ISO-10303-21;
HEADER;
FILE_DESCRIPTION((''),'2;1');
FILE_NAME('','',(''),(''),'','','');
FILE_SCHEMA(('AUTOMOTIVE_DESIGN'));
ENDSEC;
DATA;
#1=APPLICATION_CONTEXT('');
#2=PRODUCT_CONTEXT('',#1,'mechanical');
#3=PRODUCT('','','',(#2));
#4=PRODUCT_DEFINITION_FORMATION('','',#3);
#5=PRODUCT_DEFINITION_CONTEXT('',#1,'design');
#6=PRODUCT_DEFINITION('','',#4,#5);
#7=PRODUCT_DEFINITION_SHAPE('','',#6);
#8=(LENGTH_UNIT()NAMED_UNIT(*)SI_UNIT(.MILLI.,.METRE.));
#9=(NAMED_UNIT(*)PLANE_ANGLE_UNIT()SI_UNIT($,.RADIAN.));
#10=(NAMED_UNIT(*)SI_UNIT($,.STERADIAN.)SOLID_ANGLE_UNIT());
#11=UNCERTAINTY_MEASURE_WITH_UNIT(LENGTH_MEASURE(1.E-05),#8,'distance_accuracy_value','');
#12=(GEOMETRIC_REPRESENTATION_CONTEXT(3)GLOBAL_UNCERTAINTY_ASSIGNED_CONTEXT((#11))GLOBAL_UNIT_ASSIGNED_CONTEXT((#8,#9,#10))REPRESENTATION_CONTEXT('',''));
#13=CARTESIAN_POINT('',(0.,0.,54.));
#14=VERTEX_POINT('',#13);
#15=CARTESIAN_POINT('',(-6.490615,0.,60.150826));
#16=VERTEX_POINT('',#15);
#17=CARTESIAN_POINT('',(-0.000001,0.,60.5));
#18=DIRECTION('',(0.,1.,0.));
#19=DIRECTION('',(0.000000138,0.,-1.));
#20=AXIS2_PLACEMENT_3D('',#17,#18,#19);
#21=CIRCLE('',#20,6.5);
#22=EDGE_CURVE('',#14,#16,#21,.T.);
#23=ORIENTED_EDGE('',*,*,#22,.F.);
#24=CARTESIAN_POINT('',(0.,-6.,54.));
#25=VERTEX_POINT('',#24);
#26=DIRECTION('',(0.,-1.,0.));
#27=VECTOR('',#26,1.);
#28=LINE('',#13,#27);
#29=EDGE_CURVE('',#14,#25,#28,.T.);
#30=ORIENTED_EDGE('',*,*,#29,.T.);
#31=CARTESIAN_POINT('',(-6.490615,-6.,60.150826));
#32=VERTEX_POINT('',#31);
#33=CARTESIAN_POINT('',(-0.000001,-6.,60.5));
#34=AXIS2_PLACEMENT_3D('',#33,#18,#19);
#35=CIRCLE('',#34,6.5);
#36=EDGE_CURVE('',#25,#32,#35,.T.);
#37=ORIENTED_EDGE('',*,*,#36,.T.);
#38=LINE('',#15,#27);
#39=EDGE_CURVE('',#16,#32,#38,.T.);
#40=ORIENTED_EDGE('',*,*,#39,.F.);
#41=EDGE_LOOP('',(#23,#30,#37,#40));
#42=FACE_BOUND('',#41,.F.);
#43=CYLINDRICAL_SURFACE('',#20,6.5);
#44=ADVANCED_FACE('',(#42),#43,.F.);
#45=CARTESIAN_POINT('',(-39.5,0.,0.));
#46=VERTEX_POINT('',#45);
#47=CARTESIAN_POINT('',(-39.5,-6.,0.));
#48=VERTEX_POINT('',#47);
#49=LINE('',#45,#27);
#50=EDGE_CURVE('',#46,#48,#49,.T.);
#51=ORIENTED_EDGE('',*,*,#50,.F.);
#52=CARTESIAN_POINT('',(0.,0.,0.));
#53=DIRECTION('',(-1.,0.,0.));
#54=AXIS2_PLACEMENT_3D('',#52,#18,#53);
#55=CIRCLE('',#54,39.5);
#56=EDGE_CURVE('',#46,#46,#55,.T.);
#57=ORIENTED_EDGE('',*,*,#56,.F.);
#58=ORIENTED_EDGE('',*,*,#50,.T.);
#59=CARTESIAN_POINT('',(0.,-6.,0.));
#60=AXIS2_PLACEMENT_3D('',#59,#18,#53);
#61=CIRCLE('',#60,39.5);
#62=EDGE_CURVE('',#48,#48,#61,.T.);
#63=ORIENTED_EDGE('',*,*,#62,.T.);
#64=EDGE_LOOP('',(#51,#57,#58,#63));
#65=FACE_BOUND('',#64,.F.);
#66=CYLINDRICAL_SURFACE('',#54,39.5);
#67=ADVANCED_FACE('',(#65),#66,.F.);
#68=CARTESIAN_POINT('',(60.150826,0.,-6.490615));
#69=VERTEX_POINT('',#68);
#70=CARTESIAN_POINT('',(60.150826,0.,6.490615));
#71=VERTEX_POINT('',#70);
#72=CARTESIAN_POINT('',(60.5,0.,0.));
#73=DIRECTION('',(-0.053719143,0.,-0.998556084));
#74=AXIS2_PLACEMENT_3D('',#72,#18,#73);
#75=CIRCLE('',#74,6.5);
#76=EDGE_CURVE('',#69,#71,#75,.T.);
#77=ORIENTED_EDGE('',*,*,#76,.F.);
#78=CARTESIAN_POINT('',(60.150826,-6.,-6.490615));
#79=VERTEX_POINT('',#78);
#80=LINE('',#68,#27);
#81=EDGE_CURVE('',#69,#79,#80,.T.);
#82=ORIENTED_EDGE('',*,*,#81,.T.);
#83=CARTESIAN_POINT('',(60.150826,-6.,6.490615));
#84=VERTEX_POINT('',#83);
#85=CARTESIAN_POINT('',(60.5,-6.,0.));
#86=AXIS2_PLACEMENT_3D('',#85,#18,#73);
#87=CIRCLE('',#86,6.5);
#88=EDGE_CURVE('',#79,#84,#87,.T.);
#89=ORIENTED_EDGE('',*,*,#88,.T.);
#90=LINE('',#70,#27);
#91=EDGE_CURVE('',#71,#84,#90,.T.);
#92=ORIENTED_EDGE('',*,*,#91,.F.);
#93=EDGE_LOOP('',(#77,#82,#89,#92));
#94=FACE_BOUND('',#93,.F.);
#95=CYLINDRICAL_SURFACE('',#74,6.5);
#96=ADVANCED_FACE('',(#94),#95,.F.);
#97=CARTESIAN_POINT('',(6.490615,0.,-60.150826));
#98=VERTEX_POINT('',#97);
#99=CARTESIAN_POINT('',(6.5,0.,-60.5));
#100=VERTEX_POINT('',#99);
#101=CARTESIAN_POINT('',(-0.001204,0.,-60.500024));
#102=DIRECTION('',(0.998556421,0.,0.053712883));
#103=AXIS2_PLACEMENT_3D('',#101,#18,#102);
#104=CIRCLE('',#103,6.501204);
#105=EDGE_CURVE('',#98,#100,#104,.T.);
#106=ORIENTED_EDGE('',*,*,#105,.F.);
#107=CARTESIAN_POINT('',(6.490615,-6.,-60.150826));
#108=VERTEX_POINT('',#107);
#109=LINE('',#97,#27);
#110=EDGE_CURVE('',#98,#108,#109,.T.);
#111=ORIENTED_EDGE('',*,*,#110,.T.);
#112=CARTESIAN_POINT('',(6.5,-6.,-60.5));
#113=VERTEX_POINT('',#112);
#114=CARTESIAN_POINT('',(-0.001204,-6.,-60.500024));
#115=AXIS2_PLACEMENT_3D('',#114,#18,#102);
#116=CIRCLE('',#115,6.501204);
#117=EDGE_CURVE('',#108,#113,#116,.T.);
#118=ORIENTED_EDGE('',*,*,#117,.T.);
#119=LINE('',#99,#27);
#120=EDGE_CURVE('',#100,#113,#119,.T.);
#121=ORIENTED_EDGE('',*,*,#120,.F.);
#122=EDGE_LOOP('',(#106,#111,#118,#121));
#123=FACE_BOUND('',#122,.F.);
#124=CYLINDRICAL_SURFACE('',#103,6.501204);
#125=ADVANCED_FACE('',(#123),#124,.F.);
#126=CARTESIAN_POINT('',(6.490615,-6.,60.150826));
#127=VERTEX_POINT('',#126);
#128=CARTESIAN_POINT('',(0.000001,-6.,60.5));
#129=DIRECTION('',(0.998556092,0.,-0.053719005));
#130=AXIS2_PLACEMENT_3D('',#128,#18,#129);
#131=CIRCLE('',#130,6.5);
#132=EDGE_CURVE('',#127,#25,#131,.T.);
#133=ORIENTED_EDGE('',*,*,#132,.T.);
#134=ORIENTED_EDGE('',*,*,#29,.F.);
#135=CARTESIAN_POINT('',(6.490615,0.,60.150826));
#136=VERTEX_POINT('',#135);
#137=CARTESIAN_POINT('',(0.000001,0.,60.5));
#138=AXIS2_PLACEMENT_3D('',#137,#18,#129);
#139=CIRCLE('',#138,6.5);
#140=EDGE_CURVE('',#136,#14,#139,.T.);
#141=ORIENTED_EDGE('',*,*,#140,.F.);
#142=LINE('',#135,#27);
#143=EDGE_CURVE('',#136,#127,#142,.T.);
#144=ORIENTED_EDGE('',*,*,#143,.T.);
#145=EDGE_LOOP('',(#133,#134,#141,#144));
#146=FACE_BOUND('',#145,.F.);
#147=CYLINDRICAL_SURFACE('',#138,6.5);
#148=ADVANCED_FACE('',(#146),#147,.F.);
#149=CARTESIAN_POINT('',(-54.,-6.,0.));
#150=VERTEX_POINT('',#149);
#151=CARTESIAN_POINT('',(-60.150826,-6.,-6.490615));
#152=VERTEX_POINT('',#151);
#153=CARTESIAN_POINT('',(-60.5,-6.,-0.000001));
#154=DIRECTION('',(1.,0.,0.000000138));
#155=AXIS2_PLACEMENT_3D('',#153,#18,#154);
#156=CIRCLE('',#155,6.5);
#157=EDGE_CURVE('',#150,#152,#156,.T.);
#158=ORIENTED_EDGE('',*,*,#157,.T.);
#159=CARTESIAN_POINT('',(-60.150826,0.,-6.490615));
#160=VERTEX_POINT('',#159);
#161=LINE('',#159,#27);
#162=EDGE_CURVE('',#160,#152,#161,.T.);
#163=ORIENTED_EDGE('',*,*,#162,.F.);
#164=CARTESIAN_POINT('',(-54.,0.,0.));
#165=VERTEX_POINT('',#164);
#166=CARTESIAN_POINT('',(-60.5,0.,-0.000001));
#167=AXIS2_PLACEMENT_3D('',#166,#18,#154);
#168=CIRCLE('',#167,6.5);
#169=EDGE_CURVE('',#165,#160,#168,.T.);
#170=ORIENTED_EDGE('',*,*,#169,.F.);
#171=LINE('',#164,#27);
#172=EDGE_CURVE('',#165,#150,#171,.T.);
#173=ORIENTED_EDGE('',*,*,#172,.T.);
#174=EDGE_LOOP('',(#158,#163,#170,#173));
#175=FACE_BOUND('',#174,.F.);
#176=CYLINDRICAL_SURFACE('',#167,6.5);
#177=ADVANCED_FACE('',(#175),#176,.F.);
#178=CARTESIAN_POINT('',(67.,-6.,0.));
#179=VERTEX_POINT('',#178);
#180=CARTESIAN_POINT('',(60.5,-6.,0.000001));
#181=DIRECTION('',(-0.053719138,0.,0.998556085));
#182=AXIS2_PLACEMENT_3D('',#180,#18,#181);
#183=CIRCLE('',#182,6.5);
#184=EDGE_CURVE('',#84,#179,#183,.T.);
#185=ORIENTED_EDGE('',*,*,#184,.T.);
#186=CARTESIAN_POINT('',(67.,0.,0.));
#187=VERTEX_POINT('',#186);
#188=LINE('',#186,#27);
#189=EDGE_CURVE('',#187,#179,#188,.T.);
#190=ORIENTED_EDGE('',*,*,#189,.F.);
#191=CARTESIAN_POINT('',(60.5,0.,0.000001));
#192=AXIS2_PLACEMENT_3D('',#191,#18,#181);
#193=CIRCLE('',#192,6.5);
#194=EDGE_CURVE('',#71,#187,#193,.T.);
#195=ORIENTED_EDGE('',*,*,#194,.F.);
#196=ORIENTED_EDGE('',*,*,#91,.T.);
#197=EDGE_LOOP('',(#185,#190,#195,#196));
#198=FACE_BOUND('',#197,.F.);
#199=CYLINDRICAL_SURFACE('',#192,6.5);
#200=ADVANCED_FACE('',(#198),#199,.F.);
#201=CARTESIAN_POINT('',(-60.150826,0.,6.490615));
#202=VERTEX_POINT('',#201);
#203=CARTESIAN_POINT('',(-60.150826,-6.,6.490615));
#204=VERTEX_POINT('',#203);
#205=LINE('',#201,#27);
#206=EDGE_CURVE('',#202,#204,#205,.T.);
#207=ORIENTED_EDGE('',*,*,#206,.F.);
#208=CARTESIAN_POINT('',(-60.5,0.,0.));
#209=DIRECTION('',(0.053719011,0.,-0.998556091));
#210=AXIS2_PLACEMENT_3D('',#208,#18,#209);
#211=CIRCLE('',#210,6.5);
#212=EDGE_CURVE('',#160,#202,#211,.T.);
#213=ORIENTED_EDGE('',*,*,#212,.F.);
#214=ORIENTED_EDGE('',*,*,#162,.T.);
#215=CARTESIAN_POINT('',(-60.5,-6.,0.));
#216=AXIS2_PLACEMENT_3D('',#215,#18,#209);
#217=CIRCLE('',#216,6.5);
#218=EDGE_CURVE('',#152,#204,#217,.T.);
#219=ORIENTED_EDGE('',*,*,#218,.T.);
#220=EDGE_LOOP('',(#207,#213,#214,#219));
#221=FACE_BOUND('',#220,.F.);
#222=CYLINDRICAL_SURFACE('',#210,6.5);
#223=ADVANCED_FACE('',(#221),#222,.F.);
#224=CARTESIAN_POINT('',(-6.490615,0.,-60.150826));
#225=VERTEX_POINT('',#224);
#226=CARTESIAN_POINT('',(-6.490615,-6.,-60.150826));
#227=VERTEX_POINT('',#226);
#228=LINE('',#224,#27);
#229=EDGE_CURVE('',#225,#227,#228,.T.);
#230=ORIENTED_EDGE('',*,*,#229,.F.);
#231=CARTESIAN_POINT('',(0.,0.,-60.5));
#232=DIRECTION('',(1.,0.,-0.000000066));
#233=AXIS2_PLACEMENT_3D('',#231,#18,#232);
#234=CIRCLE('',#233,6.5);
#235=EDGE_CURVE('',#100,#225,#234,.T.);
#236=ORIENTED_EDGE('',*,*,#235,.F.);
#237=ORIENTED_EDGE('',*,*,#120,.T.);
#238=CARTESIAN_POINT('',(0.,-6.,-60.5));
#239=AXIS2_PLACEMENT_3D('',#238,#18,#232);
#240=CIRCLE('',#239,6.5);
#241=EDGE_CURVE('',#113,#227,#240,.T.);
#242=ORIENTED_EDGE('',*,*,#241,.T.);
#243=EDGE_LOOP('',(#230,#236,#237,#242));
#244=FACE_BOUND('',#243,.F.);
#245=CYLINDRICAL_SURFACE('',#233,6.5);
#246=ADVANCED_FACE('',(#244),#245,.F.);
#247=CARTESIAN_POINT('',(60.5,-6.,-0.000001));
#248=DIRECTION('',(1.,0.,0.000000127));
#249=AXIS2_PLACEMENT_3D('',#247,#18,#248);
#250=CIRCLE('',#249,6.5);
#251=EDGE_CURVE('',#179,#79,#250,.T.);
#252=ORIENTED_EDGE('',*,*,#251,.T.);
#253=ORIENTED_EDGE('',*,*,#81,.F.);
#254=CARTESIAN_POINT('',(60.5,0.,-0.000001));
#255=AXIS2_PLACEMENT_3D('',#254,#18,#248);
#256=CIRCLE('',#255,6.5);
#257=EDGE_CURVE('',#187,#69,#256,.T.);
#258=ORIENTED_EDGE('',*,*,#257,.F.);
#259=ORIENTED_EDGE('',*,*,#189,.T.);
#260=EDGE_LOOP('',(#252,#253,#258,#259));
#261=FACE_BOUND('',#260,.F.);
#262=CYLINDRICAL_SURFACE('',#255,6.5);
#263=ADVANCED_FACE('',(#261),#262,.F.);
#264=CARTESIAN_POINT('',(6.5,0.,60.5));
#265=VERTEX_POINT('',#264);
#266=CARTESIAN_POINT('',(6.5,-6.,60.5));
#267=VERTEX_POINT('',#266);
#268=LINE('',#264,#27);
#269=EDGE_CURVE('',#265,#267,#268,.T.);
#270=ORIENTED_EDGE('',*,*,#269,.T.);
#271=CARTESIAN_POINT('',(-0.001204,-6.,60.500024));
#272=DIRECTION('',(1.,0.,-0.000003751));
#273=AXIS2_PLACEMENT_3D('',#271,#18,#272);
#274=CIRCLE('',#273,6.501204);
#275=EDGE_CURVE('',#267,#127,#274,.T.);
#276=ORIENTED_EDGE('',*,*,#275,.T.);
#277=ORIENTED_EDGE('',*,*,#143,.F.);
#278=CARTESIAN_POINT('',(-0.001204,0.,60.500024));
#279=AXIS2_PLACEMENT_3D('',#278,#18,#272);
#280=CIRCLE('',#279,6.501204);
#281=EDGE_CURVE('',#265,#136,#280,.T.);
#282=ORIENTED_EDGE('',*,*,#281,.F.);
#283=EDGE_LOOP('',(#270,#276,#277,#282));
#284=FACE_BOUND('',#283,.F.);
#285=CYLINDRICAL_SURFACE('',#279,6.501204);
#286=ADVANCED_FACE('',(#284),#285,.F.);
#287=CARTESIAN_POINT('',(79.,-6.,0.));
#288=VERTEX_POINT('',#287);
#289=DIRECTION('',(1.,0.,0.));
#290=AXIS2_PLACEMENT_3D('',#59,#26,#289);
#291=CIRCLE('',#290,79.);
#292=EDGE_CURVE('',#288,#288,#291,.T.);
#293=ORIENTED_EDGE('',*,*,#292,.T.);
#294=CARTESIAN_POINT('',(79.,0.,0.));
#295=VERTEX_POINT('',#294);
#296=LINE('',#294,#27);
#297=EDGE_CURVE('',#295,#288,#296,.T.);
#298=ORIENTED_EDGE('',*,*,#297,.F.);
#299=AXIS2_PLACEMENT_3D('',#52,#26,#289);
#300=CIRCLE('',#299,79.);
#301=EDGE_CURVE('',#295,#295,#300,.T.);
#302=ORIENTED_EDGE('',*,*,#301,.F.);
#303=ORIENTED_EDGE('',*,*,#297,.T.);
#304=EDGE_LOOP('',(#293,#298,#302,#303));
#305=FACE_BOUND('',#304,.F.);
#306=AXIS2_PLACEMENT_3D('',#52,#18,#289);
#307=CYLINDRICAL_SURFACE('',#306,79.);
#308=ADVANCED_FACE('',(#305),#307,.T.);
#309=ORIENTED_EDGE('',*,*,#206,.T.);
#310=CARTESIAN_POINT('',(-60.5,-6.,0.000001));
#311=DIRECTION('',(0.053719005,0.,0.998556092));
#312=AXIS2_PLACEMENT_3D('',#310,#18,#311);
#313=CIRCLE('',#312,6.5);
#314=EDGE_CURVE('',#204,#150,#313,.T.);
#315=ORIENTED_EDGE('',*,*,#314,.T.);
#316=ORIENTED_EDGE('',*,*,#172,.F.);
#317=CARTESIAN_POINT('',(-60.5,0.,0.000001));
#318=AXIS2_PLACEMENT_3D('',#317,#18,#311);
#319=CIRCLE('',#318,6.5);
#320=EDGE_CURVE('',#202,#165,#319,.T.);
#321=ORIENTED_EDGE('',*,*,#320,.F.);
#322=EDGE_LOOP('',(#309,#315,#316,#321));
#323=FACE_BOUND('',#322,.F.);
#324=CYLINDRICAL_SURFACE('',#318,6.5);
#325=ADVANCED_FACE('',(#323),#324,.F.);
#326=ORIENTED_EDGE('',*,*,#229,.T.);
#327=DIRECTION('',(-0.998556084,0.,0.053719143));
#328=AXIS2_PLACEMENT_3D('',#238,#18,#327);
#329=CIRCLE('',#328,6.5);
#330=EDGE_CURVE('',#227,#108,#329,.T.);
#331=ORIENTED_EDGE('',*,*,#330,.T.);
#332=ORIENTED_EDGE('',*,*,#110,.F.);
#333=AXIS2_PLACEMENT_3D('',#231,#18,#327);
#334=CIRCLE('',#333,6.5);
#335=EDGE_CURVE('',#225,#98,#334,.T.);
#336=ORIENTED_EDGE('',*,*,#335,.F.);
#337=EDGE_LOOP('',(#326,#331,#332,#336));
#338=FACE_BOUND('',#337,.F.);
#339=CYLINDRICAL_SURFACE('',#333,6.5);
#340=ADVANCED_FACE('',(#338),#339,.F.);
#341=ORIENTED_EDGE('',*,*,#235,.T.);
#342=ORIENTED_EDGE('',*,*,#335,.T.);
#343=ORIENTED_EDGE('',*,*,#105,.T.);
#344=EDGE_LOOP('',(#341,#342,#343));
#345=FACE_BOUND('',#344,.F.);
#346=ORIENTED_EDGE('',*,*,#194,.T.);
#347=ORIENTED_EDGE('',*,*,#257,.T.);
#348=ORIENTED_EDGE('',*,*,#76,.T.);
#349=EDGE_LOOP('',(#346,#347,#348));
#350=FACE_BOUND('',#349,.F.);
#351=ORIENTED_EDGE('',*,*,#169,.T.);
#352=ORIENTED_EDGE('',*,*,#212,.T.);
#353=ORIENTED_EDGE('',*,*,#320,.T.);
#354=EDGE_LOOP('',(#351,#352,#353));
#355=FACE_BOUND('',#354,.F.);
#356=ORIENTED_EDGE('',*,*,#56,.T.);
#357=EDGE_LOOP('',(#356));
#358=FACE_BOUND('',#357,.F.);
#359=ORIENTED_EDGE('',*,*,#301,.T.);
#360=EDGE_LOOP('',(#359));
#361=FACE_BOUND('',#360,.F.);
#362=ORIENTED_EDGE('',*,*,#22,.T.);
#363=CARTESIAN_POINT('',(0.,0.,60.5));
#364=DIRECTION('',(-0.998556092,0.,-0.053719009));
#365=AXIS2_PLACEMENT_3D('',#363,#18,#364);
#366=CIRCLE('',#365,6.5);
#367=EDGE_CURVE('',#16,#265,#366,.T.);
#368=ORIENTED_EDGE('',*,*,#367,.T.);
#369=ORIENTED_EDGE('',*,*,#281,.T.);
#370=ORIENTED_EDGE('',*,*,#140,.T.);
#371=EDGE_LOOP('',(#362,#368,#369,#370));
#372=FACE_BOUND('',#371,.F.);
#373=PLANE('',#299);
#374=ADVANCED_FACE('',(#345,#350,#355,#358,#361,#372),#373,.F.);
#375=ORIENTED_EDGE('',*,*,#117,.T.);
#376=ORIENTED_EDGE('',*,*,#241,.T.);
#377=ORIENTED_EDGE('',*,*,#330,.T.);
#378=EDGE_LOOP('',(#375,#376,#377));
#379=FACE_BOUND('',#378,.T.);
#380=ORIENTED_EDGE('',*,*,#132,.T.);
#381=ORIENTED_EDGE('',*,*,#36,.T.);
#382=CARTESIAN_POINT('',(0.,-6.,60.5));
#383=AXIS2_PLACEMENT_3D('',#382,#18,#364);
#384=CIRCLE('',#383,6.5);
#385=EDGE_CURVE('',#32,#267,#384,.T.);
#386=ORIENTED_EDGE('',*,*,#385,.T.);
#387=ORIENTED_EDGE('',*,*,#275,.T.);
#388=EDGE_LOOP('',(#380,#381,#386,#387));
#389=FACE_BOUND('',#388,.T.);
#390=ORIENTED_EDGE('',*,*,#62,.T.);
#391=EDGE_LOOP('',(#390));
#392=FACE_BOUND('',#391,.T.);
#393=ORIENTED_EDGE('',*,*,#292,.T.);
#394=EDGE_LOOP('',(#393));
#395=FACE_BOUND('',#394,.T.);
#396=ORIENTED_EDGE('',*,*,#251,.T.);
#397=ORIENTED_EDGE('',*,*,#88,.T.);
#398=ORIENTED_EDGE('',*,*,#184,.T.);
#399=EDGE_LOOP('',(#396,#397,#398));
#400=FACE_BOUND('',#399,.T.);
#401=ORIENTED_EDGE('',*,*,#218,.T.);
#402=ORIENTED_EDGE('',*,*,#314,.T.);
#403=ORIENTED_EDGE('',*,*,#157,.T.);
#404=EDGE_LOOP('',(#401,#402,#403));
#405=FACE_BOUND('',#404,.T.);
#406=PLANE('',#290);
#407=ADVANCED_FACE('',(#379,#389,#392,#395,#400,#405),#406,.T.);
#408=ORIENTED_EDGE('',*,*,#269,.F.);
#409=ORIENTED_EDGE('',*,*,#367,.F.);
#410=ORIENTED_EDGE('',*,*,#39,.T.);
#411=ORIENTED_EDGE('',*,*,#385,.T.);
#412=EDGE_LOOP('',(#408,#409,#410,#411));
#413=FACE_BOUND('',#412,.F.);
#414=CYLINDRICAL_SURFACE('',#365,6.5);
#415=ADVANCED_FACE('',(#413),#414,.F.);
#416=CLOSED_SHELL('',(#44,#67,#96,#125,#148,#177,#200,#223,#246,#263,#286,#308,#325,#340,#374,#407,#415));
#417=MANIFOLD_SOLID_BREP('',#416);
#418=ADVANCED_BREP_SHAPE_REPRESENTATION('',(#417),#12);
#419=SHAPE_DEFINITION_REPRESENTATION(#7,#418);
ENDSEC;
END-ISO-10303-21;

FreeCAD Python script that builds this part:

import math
import FreeCAD as App
import Part
import Sketcher
from FreeCAD import Vector
Q = App.Units.Quantity

doc = App.newDocument("Part")
params = doc.addObject("Spreadsheet::Sheet", "Params")
for row, (alias, value) in enumerate([
    ("sketch1_diameter", "158 mm"),
    ("sketch1_radius", "6.5 mm"),
    ("pad1_length", "6 mm"),
    ("sketch2_diameter", "79 mm"),
], start=1):
    params.set(f"A{row}", alias)
    params.set(f"B{row}", "=" + value)
    params.setAlias(f"B{row}", alias)

body = doc.addObject("PartDesign::Body", "Body")

sketch1 = body.newObject("Sketcher::SketchObject", "Sketch")
sketch1.AttachmentSupport = (doc.getObject("XZ_Plane"), [""])
sketch1.MapMode = "FlatFace"
sketch1.addGeometry([
    Part.Circle(Vector(0, 0, 0), Vector(0, 0, 1), 79),
    Part.ArcOfCircle(Part.Circle(Vector(0, 60.5, 0), Vector(0, 0, 1), 6.5), math.radians(-3.08), math.radians(0)),
    Part.ArcOfCircle(Part.Circle(Vector(0, 60.5, 0), Vector(0, 0, 1), 6.5), math.radians(-90), math.radians(-3)),
    Part.ArcOfCircle(Part.Circle(Vector(0, 60.5, 0), Vector(0, 0, 1), 6.5), math.radians(-177), math.radians(-90)),
    Part.ArcOfCircle(Part.Circle(Vector(0, 60.5, 0), Vector(0, 0, 1), 6.5), math.radians(0), math.radians(183)),
    Part.ArcOfCircle(Part.Circle(Vector(-60.5, 0, 0), Vector(0, 0, 1), 6.5), math.radians(87), math.radians(273)),
    Part.ArcOfCircle(Part.Circle(Vector(-60.5, 0, 0), Vector(0, 0, 1), 6.5), math.radians(0), math.radians(87)),
    Part.ArcOfCircle(Part.Circle(Vector(-60.5, 0, 0), Vector(0, 0, 1), 6.5), math.radians(-87), math.radians(0)),
    Part.ArcOfCircle(Part.Circle(Vector(0, -60.5, 0), Vector(0, 0, 1), 6.5), math.radians(177), math.radians(360)),
    Part.ArcOfCircle(Part.Circle(Vector(0, -60.5, 0), Vector(0, 0, 1), 6.5), math.radians(3), math.radians(177)),
    Part.ArcOfCircle(Part.Circle(Vector(0, -60.5, 0), Vector(0, 0, 1), 6.5), math.radians(0), math.radians(3.08)),
    Part.ArcOfCircle(Part.Circle(Vector(60.5, 0, 0), Vector(0, 0, 1), 6.5), math.radians(-93), math.radians(0)),
    Part.ArcOfCircle(Part.Circle(Vector(60.5, 0, 0), Vector(0, 0, 1), 6.5), math.radians(93), math.radians(267)),
    Part.ArcOfCircle(Part.Circle(Vector(60.5, 0, 0), Vector(0, 0, 1), 6.5), math.radians(0), math.radians(93)),
], False)
sketch1.addConstraint([
    Sketcher.Constraint("Coincident", 1, 1, 2, 2),
    Sketcher.Constraint("Tangent", 2, 1, 3, 2),
    Sketcher.Constraint("Tangent", 3, 1, 4, 2),
    Sketcher.Constraint("Coincident", 4, 1, 1, 2),
    Sketcher.Constraint("Tangent", 5, 1, 6, 2),
    Sketcher.Constraint("Tangent", 6, 1, 7, 2),
    Sketcher.Constraint("Tangent", 7, 1, 5, 2),
    Sketcher.Constraint("Tangent", 8, 1, 9, 2),
    Sketcher.Constraint("Coincident", 9, 1, 10, 2),
    Sketcher.Constraint("Coincident", 10, 1, 8, 2),
    Sketcher.Constraint("Tangent", 11, 1, 12, 2),
    Sketcher.Constraint("Tangent", 12, 1, 13, 2),
    Sketcher.Constraint("Tangent", 13, 1, 11, 2),
    Sketcher.Constraint("Coincident", 0, 3, -1, 1),
    Sketcher.Constraint("Coincident", 4, 3, 2, 3),
    Sketcher.Constraint("Equal", 4, 5),
    Sketcher.Constraint("Equal", 7, 8),
    Sketcher.Constraint("Equal", 8, 9),
    Sketcher.Constraint("Equal", 1, 10),
    Sketcher.Constraint("Equal", 9, 11),
    Sketcher.Constraint("Symmetric", 2, 3, 8, 3, -1, 1),
    Sketcher.Constraint("Symmetric", 5, 3, 11, 3, -1, 1),
    Sketcher.Constraint("Symmetric", 1, 1, 3, 1, -2),
    Sketcher.Constraint("Symmetric", 7, 1, 11, 1, -2),
    Sketcher.Constraint("PointOnObject", 2, 1, -2),
    Sketcher.Constraint("PointOnObject", 6, 1, -1),
    Sketcher.Constraint("PointOnObject", 13, 1, -1),
    Sketcher.Constraint("Horizontal", 3, 3, 4, 1),
    Sketcher.Constraint("Horizontal", 8, 1, 9, 1),
    Sketcher.Constraint("Horizontal", 9, 3, 10, 1),
    Sketcher.Constraint("Horizontal", 5, 1, 12, 1),
    Sketcher.Constraint("Vertical", 5, 1, 7, 1),
    Sketcher.Constraint("Vertical", 3, 1, 8, 1),
    Sketcher.Constraint("Diameter", 0, Q("158 mm")),
    Sketcher.Constraint("Radius", 2, Q("6.5 mm")),
    Sketcher.Constraint("DistanceY", -1, 1, 2, 1, Q("54 mm")),
    Sketcher.Constraint("DistanceX", 6, 1, -1, 1, Q("54 mm")),
    Sketcher.Constraint("Radius", 1, Q("6.501204 mm")),
    Sketcher.Constraint("DistanceY", 1, 1, 1, 3, Q("0.349198 mm")),
    Sketcher.Constraint("DistanceX", 5, 1, 3, 1, Q("53.660211 mm")),
])
sketch1.setExpression("Constraints[33]", "Params.sketch1_diameter")
sketch1.setExpression("Constraints[34]", "Params.sketch1_radius")
pad1 = body.newObject("PartDesign::Pad", "Pad")
pad1.Profile = sketch1
pad1.setExpression("Length", "Params.pad1_length")

sketch2 = body.newObject("Sketcher::SketchObject", "Sketch001")
sketch2.AttachmentSupport = (doc.getObject("XZ_Plane"), [""])
sketch2.MapMode = "FlatFace"
sketch2.addGeometry(Part.Circle(Vector(0, 0, 0), Vector(0, 0, 1), 40), False)
sketch2.addConstraint([
    Sketcher.Constraint("Coincident", 0, 3, -1, 1),
    Sketcher.Constraint("Diameter", 0, Q("79 mm")),
])
sketch2.setExpression("Constraints[1]", "Params.sketch2_diameter")
pocket1 = body.newObject("PartDesign::Pocket", "Pocket")
pocket1.Profile = sketch2
pocket1.Type = "ThroughAll"
pocket1.Reversed = True

doc.recompute()
